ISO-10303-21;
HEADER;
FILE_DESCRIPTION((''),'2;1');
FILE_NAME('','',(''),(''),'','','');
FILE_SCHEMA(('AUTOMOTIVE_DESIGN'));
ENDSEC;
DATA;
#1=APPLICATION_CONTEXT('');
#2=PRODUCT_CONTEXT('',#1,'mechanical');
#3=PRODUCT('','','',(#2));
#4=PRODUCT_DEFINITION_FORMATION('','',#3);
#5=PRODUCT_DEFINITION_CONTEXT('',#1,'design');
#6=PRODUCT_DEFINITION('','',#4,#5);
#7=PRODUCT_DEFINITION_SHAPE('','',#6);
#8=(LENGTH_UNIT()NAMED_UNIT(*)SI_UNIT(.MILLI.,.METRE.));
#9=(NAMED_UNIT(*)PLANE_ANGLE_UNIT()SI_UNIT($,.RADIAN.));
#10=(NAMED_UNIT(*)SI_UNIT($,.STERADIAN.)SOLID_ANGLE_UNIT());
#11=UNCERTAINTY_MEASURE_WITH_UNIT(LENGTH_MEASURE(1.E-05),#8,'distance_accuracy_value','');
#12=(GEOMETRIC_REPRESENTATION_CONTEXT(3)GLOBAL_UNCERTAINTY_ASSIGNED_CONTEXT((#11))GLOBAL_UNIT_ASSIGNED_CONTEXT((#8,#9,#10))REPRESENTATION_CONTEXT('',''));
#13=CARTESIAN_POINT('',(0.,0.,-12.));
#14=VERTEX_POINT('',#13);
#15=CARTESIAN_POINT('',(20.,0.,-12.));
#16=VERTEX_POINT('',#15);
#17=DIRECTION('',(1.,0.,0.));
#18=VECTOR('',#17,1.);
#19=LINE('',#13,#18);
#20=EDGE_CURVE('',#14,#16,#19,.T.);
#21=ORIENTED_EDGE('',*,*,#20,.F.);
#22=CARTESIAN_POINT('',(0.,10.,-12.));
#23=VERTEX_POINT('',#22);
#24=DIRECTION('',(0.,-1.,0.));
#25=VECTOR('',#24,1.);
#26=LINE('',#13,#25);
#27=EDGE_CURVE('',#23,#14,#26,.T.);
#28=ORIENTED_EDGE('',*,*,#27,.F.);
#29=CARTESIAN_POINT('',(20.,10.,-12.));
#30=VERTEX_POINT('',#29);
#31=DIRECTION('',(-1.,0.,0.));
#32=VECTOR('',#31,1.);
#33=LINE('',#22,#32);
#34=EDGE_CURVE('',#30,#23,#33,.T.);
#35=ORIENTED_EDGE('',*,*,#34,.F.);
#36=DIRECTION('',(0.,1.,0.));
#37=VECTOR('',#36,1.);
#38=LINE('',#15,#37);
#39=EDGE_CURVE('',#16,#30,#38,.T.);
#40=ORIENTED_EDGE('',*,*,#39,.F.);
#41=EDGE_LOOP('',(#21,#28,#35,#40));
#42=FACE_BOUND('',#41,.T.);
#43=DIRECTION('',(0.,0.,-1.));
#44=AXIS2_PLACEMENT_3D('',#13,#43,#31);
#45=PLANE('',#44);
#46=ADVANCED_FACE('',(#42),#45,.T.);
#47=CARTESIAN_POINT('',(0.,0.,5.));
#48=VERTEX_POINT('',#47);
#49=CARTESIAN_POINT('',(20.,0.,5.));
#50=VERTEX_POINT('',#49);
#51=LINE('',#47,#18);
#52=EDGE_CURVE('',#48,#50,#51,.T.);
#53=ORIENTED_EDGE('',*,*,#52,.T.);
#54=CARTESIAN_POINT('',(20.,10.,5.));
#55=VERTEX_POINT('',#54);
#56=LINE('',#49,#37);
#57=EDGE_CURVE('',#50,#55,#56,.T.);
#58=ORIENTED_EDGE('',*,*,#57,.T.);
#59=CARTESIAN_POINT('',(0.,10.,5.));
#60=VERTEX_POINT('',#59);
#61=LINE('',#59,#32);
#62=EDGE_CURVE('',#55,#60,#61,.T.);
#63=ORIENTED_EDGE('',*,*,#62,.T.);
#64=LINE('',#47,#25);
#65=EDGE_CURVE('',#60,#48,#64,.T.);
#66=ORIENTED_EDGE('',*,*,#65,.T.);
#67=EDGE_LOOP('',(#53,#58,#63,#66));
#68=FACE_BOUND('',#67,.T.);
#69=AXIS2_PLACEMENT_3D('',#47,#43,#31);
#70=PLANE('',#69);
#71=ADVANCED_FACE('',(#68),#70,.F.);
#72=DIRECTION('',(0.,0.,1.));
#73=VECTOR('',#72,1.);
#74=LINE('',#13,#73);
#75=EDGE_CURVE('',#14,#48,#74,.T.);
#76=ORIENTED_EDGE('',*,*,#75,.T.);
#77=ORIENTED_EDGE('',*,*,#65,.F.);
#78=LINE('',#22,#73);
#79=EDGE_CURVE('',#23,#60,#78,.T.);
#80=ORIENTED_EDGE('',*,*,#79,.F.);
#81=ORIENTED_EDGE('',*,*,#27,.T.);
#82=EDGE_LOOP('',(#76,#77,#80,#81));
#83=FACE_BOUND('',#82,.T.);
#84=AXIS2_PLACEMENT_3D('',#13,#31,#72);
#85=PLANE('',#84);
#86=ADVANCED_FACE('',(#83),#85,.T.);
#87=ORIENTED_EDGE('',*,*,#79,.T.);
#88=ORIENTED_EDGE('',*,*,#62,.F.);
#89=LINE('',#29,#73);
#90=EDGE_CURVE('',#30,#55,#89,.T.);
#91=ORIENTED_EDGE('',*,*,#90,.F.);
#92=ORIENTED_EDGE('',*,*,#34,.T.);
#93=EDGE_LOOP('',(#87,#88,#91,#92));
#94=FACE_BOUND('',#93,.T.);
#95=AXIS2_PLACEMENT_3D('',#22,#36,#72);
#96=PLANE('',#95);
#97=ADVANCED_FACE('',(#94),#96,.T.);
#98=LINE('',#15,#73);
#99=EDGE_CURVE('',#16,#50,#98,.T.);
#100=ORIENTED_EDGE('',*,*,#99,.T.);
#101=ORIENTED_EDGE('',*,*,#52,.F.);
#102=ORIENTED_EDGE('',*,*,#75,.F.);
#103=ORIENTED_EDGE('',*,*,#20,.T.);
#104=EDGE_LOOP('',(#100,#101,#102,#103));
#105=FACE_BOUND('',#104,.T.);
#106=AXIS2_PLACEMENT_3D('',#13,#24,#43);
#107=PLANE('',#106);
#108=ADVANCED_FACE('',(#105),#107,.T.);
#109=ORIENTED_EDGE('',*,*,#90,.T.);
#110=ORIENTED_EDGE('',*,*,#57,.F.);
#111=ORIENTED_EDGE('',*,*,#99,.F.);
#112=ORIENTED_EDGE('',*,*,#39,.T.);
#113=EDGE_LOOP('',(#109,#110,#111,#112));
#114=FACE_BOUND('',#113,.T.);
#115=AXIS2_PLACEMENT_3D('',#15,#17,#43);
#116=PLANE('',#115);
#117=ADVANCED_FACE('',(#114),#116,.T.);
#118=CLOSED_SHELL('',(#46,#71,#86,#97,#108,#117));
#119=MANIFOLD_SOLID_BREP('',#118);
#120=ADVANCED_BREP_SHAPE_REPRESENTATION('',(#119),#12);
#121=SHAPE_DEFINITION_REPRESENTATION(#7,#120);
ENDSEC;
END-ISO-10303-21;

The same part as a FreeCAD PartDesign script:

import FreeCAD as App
import Part
import Sketcher


def add_polygon(sketch, points):
    """Adds a closed chain of lines whose ends are joined by coincident constraints."""
    first, n = sketch.GeometryCount, len(points)
    for a, b in zip(points, points[1:] + points[:1]):
        sketch.addGeometry(Part.LineSegment(App.Vector(*a, 0), App.Vector(*b, 0)), False)
    for i in range(n):
        sketch.addConstraint(Sketcher.Constraint("Coincident", first + i, 2, first + (i + 1) % n, 1))

doc = App.newDocument("Part")
body = doc.addObject("PartDesign::Body", "Body")

# Sketch on XY plane
sketch1 = body.newObject("Sketcher::SketchObject", "Sketch")
sketch1.AttachmentSupport = (doc.getObject("XY_Plane"), [""])
sketch1.MapMode = "FlatFace"
add_polygon(sketch1, [(0, 10), (0, 0), (20, 0), (20, 10)])  # lines 0-3
sketch1.addConstraint(Sketcher.Constraint("Vertical", 0))
sketch1.addConstraint(Sketcher.Constraint("Horizontal", 1))
sketch1.addConstraint(Sketcher.Constraint("Vertical", 2))
sketch1.addConstraint(Sketcher.Constraint("Horizontal", 3))
sketch1.addConstraint(Sketcher.Constraint("Coincident", 0, 2, -1, 1))
sketch1.addConstraint(Sketcher.Constraint("DistanceX", 1, 1, 1, 2, 20.0))
sketch1.addConstraint(Sketcher.Constraint("DistanceY", 0, 2, 0, 1, 10.0))
pad1 = body.newObject("PartDesign::Pad", "Pad")
pad1.Profile = sketch1
pad1.Type = "TwoLengths"
pad1.Length = 5
pad1.Length2 = 12

doc.recompute()
